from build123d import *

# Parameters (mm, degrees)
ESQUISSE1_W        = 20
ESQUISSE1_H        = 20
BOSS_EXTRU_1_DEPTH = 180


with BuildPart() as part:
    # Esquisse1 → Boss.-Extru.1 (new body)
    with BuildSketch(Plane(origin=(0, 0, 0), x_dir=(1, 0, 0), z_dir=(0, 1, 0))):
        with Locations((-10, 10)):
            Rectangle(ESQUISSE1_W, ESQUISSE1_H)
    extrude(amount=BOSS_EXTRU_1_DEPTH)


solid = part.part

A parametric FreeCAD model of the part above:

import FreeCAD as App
import Part
import Sketcher
from FreeCAD import Vector


def add_polygon(sketch, points):
    """Adds a closed chain of lines whose ends are joined by coincident constraints."""
    first, n = sketch.GeometryCount, len(points)
    for a, b in zip(points, points[1:] + points[:1]):
        sketch.addGeometry(Part.LineSegment(App.Vector(*a, 0), App.Vector(*b, 0)), False)
    for i in range(n):
        sketch.addConstraint(Sketcher.Constraint("Coincident", first + i, 2, first + (i + 1) % n, 1))

doc = App.newDocument("Part")
params = doc.addObject("Spreadsheet::Sheet", "Params")
for row, (alias, value) in enumerate([
    ("sketch1_width", "20 mm"),
    ("pad1_length", "180 mm"),
], start=1):
    params.set(f"A{row}", alias)
    params.set(f"B{row}", "=" + value)
    params.setAlias(f"B{row}", alias)

body = doc.addObject("PartDesign::Body", "Body")

# Sketch on XZ plane
sketch1 = body.newObject("Sketcher::SketchObject", "Sketch")
sketch1.AttachmentSupport = (doc.getObject("XZ_Plane"), [""])
sketch1.MapMode = "FlatFace"
add_polygon(sketch1, [(-20, -20), (-20, 0), (0, 0), (0, -20)])  # lines 0-3
sketch1.addConstraint(Sketcher.Constraint("Vertical", 0))
sketch1.addConstraint(Sketcher.Constraint("Horizontal", 1))
sketch1.addConstraint(Sketcher.Constraint("Vertical", 2))
sketch1.addConstraint(Sketcher.Constraint("Horizontal", 3))
sketch1.addConstraint(Sketcher.Constraint("Coincident", 1, 2, -1, 1))
sketch1.addConstraint(Sketcher.Constraint("Equal", 3, 0))
sketch1.addConstraint(Sketcher.Constraint("DistanceX", 1, 1, 1, 2, 20.0))
sketch1.setExpression("Constraints[10]", "Params.sketch1_width")
pad1 = body.newObject("PartDesign::Pad", "Pad")
pad1.Profile = sketch1
pad1.setExpression("Length", "Params.pad1_length")
pad1.Reversed = True

doc.recompute()
